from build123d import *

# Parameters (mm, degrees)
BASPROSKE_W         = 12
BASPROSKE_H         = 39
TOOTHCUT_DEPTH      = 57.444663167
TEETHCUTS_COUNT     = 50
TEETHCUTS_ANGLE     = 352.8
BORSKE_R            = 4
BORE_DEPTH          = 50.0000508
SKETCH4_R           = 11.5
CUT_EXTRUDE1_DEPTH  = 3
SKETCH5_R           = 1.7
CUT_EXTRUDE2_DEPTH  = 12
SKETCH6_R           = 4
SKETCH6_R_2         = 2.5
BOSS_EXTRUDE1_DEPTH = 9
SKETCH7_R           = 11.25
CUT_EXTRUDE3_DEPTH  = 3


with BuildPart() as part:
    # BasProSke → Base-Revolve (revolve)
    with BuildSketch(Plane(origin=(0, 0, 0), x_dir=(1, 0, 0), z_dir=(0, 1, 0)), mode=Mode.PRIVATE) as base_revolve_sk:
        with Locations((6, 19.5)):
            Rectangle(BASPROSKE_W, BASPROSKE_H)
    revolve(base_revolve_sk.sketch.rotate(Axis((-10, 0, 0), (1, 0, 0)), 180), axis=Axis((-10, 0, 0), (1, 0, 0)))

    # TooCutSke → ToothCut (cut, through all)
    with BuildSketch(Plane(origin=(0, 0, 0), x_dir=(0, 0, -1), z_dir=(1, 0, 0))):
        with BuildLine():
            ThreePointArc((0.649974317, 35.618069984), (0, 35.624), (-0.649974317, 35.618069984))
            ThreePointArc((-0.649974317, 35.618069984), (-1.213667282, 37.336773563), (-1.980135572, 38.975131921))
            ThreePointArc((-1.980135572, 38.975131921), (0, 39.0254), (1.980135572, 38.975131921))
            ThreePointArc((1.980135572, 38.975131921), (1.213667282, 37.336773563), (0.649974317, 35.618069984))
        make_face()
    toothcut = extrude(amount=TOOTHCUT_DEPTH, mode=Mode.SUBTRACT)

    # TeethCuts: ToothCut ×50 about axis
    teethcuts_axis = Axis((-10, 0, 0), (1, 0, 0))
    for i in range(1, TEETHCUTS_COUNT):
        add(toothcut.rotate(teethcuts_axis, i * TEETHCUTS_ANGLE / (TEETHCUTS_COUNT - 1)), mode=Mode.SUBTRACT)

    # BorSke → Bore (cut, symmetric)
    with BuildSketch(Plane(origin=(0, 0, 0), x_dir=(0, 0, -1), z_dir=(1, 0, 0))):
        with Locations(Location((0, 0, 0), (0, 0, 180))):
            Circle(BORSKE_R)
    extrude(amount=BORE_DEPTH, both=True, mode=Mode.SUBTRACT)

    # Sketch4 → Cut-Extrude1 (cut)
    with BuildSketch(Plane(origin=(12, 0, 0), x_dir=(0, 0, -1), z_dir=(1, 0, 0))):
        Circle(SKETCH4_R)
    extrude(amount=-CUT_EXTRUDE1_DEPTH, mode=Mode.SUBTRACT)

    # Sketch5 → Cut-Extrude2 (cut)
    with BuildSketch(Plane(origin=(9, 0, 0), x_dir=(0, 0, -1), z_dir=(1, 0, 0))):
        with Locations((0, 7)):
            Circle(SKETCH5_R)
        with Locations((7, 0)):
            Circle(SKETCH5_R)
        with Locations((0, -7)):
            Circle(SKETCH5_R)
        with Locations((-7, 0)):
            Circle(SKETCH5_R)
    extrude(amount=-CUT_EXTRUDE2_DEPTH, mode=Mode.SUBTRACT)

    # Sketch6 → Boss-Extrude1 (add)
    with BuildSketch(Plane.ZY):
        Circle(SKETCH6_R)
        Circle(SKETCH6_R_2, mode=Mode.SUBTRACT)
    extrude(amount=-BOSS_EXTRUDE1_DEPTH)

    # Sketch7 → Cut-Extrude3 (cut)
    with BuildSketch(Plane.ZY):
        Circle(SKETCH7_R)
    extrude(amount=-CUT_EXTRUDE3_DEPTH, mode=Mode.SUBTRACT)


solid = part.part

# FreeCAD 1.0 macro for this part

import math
import FreeCAD as App
import Part
import Sketcher
Q = App.Units.Quantity


def add_polygon(sketch, points):
    """Adds a closed chain of lines whose ends are joined by coincident constraints."""
    first, n = sketch.GeometryCount, len(points)
    for a, b in zip(points, points[1:] + points[:1]):
        sketch.addGeometry(Part.LineSegment(App.Vector(*a, 0), App.Vector(*b, 0)), False)
    for i in range(n):
        sketch.addConstraint(Sketcher.Constraint("Coincident", first + i, 2, first + (i + 1) % n, 1))

doc = App.newDocument("Part")
body = doc.addObject("PartDesign::Body", "Body")

# Sketch on XZ plane
sketch1 = body.newObject("Sketcher::SketchObject", "Sketch")
sketch1.AttachmentSupport = (doc.getObject("XZ_Plane"), [""])
sketch1.MapMode = "FlatFace"
add_polygon(sketch1, [(0, -39), (0, 0), (12, 0), (12, -39)])  # lines 0-3
sketch1.addConstraint(Sketcher.Constraint("Vertical", 0))
sketch1.addConstraint(Sketcher.Constraint("Horizontal", 1))
sketch1.addConstraint(Sketcher.Constraint("Vertical", 2))
sketch1.addConstraint(Sketcher.Constraint("Horizontal", 3))
sketch1.addConstraint(Sketcher.Constraint("Coincident", 0, 2, -1, 1))
sketch1.addConstraint(Sketcher.Constraint("DistanceX", 1, 1, 1, 2, Q("12 mm")))
sketch1.addConstraint(Sketcher.Constraint("DistanceY", 0, 1, 0, 2, Q("39 mm")))
revolution = body.newObject("PartDesign::Revolution", "Revolution")
revolution.Profile = sketch1
revolution.ReferenceAxis = (sketch1, ["H_Axis"])
revolution.Angle = 360

# Sketch on YZ plane
sketch2 = body.newObject("Sketcher::SketchObject", "Sketch001")
sketch2.AttachmentSupport = (doc.getObject("YZ_Plane"), [""])
sketch2.MapMode = "FlatFace"
sketch2.addGeometry(Part.ArcOfCircle(Part.Circle(App.Vector(0, 0, 0), App.Vector(0, 0, 1), 35.624), math.radians(-1.045443), math.radians(1.045443)), False)
sketch2.addGeometry(Part.ArcOfCircle(Part.Circle(App.Vector(31.811291, -15.158883, 0), App.Vector(0, 0, 1), 15), math.radians(61.471922), math.radians(75.298383)), False)
sketch2.addGeometry(Part.ArcOfCircle(Part.Circle(App.Vector(0, 0, 0), App.Vector(0, 0, 1), 39.0254), math.radians(-2.908417), math.radians(2.908417)), False)
sketch2.addGeometry(Part.ArcOfCircle(Part.Circle(App.Vector(31.811291, 15.158883, 0), App.Vector(0, 0, 1), 15), math.radians(-75.298383), math.radians(-61.471922)), False)
sketch2.addConstraint(Sketcher.Constraint("Coincident", 0, 1, 1, 2))
sketch2.addConstraint(Sketcher.Constraint("Coincident", 1, 1, 2, 1))
sketch2.addConstraint(Sketcher.Constraint("Coincident", 2, 2, 3, 2))
sketch2.addConstraint(Sketcher.Constraint("Coincident", 3, 1, 0, 2))
sketch2.addConstraint(Sketcher.Constraint("Coincident", 0, 3, -1, 1))
sketch2.addConstraint(Sketcher.Constraint("Coincident", 2, 3, -1, 1))
sketch2.addConstraint(Sketcher.Constraint("Equal", 1, 3))
sketch2.addConstraint(Sketcher.Constraint("Symmetric", 1, 3, 3, 3, -1))
sketch2.addConstraint(Sketcher.Constraint("Radius", 1, Q("15 mm")))
sketch2.addConstraint(Sketcher.Constraint("Radius", 0, Q("35.624 mm")))
sketch2.addConstraint(Sketcher.Constraint("Radius", 2, Q("39.0254 mm")))
sketch2.addConstraint(Sketcher.Constraint("DistanceX", -1, 1, 1, 3, Q("31.811291 mm")))
sketch2.addConstraint(Sketcher.Constraint("DistanceX", -1, 1, 0, 1, Q("35.61807 mm")))
pocket1 = body.newObject("PartDesign::Pocket", "Pocket")
pocket1.Profile = sketch2
pocket1.Type = "ThroughAll"
pocket1.Reversed = True
doc.recompute()

polarpattern = body.newObject("PartDesign::PolarPattern", "PolarPattern")
polarpattern.Originals = [pocket1]
polarpattern.Axis = (doc.getObject("X_Axis"), [""])
polarpattern.Angle = 360
polarpattern.Occurrences = 50
body.Tip = polarpattern

# Sketch on YZ plane
sketch3 = body.newObject("Sketcher::SketchObject", "Sketch002")
sketch3.AttachmentSupport = (doc.getObject("YZ_Plane"), [""])
sketch3.MapMode = "FlatFace"
sketch3.addGeometry(Part.Circle(App.Vector(0, 0, 0), App.Vector(0, 0, 1), 4), False)
sketch3.addConstraint(Sketcher.Constraint("Coincident", 0, 3, -1, 1))
sketch3.addConstraint(Sketcher.Constraint("Diameter", 0, Q("8 mm")))
pocket2 = body.newObject("PartDesign::Pocket", "Pocket001")
pocket2.Profile = sketch3
pocket2.Length = 100.000102
pocket2.Midplane = True

# Sketch on YZ plane
sketch4 = body.newObject("Sketcher::SketchObject", "Sketch003")
sketch4.AttachmentSupport = (doc.getObject("YZ_Plane"), [""])
sketch4.MapMode = "FlatFace"
sketch4.AttachmentOffset = App.Placement(App.Vector(0, 0, 12), App.Rotation())
sketch4.addGeometry(Part.Circle(App.Vector(0, 0, 0), App.Vector(0, 0, 1), 11.5), False)
sketch4.addConstraint(Sketcher.Constraint("Coincident", 0, 3, -1, 1))
sketch4.addConstraint(Sketcher.Constraint("Diameter", 0, Q("23 mm")))
pocket3 = body.newObject("PartDesign::Pocket", "Pocket002")
pocket3.Profile = sketch4
pocket3.Length = 3

# Sketch on YZ plane
sketch5 = body.newObject("Sketcher::SketchObject", "Sketch004")
sketch5.AttachmentSupport = (doc.getObject("YZ_Plane"), [""])
sketch5.MapMode = "FlatFace"
sketch5.AttachmentOffset = App.Placement(App.Vector(0, 0, 9), App.Rotation())
sketch5.addGeometry(Part.Circle(App.Vector(7, 0, 0), App.Vector(0, 0, 1), 1.7), False)
sketch5.addGeometry(Part.Circle(App.Vector(0, -7, 0), App.Vector(0, 0, 1), 1.7), False)
sketch5.addGeometry(Part.Circle(App.Vector(-7, 0, 0), App.Vector(0, 0, 1), 1.7), False)
sketch5.addGeometry(Part.Circle(App.Vector(0, 7, 0), App.Vector(0, 0, 1), 1.7), False)
sketch5.addConstraint(Sketcher.Constraint("Equal", 0, 1))
sketch5.addConstraint(Sketcher.Constraint("Equal", 1, 2))
sketch5.addConstraint(Sketcher.Constraint("Equal", 2, 3))
sketch5.addConstraint(Sketcher.Constraint("Symmetric", 0, 3, 2, 3, -1, 1))
sketch5.addConstraint(Sketcher.Constraint("Symmetric", 1, 3, 3, 3, -1, 1))
sketch5.addConstraint(Sketcher.Constraint("PointOnObject", 0, 3, -1))
sketch5.addConstraint(Sketcher.Constraint("PointOnObject", 1, 3, -2))
sketch5.addConstraint(Sketcher.Constraint("Diameter", 0, Q("3.4 mm")))
sketch5.addConstraint(Sketcher.Constraint("DistanceX", -1, 1, 0, 3, Q("7 mm")))
sketch5.addConstraint(Sketcher.Constraint("DistanceY", 1, 3, -1, 1, Q("7 mm")))
pocket4 = body.newObject("PartDesign::Pocket", "Pocket003")
pocket4.Profile = sketch5
pocket4.Length = 12

# Sketch on YZ plane
sketch6 = body.newObject("Sketcher::SketchObject", "Sketch005")
sketch6.AttachmentSupport = (doc.getObject("YZ_Plane"), [""])
sketch6.MapMode = "FlatFace"
sketch6.addGeometry(Part.Circle(App.Vector(0, 0, 0), App.Vector(0, 0, 1), 4), False)
sketch6.addGeometry(Part.Circle(App.Vector(0, 0, 0), App.Vector(0, 0, 1), 2.5), False)
sketch6.addConstraint(Sketcher.Constraint("Coincident", 0, 3, -1, 1))
sketch6.addConstraint(Sketcher.Constraint("Coincident", 1, 3, -1, 1))
sketch6.addConstraint(Sketcher.Constraint("Diameter", 0, Q("8 mm")))
sketch6.addConstraint(Sketcher.Constraint("Diameter", 1, Q("5 mm")))
pad1 = body.newObject("PartDesign::Pad", "Pad")
pad1.Profile = sketch6
pad1.Length = 9

# Sketch on YZ plane
sketch7 = body.newObject("Sketcher::SketchObject", "Sketch006")
sketch7.AttachmentSupport = (doc.getObject("YZ_Plane"), [""])
sketch7.MapMode = "FlatFace"
sketch7.addGeometry(Part.Circle(App.Vector(0, 0, 0), App.Vector(0, 0, 1), 11.25), False)
sketch7.addConstraint(Sketcher.Constraint("Coincident", 0, 3, -1, 1))
sketch7.addConstraint(Sketcher.Constraint("Diameter", 0, Q("22.5 mm")))
pocket5 = body.newObject("PartDesign::Pocket", "Pocket004")
pocket5.Profile = sketch7
pocket5.Length = 3
pocket5.Reversed = True

doc.recompute()
